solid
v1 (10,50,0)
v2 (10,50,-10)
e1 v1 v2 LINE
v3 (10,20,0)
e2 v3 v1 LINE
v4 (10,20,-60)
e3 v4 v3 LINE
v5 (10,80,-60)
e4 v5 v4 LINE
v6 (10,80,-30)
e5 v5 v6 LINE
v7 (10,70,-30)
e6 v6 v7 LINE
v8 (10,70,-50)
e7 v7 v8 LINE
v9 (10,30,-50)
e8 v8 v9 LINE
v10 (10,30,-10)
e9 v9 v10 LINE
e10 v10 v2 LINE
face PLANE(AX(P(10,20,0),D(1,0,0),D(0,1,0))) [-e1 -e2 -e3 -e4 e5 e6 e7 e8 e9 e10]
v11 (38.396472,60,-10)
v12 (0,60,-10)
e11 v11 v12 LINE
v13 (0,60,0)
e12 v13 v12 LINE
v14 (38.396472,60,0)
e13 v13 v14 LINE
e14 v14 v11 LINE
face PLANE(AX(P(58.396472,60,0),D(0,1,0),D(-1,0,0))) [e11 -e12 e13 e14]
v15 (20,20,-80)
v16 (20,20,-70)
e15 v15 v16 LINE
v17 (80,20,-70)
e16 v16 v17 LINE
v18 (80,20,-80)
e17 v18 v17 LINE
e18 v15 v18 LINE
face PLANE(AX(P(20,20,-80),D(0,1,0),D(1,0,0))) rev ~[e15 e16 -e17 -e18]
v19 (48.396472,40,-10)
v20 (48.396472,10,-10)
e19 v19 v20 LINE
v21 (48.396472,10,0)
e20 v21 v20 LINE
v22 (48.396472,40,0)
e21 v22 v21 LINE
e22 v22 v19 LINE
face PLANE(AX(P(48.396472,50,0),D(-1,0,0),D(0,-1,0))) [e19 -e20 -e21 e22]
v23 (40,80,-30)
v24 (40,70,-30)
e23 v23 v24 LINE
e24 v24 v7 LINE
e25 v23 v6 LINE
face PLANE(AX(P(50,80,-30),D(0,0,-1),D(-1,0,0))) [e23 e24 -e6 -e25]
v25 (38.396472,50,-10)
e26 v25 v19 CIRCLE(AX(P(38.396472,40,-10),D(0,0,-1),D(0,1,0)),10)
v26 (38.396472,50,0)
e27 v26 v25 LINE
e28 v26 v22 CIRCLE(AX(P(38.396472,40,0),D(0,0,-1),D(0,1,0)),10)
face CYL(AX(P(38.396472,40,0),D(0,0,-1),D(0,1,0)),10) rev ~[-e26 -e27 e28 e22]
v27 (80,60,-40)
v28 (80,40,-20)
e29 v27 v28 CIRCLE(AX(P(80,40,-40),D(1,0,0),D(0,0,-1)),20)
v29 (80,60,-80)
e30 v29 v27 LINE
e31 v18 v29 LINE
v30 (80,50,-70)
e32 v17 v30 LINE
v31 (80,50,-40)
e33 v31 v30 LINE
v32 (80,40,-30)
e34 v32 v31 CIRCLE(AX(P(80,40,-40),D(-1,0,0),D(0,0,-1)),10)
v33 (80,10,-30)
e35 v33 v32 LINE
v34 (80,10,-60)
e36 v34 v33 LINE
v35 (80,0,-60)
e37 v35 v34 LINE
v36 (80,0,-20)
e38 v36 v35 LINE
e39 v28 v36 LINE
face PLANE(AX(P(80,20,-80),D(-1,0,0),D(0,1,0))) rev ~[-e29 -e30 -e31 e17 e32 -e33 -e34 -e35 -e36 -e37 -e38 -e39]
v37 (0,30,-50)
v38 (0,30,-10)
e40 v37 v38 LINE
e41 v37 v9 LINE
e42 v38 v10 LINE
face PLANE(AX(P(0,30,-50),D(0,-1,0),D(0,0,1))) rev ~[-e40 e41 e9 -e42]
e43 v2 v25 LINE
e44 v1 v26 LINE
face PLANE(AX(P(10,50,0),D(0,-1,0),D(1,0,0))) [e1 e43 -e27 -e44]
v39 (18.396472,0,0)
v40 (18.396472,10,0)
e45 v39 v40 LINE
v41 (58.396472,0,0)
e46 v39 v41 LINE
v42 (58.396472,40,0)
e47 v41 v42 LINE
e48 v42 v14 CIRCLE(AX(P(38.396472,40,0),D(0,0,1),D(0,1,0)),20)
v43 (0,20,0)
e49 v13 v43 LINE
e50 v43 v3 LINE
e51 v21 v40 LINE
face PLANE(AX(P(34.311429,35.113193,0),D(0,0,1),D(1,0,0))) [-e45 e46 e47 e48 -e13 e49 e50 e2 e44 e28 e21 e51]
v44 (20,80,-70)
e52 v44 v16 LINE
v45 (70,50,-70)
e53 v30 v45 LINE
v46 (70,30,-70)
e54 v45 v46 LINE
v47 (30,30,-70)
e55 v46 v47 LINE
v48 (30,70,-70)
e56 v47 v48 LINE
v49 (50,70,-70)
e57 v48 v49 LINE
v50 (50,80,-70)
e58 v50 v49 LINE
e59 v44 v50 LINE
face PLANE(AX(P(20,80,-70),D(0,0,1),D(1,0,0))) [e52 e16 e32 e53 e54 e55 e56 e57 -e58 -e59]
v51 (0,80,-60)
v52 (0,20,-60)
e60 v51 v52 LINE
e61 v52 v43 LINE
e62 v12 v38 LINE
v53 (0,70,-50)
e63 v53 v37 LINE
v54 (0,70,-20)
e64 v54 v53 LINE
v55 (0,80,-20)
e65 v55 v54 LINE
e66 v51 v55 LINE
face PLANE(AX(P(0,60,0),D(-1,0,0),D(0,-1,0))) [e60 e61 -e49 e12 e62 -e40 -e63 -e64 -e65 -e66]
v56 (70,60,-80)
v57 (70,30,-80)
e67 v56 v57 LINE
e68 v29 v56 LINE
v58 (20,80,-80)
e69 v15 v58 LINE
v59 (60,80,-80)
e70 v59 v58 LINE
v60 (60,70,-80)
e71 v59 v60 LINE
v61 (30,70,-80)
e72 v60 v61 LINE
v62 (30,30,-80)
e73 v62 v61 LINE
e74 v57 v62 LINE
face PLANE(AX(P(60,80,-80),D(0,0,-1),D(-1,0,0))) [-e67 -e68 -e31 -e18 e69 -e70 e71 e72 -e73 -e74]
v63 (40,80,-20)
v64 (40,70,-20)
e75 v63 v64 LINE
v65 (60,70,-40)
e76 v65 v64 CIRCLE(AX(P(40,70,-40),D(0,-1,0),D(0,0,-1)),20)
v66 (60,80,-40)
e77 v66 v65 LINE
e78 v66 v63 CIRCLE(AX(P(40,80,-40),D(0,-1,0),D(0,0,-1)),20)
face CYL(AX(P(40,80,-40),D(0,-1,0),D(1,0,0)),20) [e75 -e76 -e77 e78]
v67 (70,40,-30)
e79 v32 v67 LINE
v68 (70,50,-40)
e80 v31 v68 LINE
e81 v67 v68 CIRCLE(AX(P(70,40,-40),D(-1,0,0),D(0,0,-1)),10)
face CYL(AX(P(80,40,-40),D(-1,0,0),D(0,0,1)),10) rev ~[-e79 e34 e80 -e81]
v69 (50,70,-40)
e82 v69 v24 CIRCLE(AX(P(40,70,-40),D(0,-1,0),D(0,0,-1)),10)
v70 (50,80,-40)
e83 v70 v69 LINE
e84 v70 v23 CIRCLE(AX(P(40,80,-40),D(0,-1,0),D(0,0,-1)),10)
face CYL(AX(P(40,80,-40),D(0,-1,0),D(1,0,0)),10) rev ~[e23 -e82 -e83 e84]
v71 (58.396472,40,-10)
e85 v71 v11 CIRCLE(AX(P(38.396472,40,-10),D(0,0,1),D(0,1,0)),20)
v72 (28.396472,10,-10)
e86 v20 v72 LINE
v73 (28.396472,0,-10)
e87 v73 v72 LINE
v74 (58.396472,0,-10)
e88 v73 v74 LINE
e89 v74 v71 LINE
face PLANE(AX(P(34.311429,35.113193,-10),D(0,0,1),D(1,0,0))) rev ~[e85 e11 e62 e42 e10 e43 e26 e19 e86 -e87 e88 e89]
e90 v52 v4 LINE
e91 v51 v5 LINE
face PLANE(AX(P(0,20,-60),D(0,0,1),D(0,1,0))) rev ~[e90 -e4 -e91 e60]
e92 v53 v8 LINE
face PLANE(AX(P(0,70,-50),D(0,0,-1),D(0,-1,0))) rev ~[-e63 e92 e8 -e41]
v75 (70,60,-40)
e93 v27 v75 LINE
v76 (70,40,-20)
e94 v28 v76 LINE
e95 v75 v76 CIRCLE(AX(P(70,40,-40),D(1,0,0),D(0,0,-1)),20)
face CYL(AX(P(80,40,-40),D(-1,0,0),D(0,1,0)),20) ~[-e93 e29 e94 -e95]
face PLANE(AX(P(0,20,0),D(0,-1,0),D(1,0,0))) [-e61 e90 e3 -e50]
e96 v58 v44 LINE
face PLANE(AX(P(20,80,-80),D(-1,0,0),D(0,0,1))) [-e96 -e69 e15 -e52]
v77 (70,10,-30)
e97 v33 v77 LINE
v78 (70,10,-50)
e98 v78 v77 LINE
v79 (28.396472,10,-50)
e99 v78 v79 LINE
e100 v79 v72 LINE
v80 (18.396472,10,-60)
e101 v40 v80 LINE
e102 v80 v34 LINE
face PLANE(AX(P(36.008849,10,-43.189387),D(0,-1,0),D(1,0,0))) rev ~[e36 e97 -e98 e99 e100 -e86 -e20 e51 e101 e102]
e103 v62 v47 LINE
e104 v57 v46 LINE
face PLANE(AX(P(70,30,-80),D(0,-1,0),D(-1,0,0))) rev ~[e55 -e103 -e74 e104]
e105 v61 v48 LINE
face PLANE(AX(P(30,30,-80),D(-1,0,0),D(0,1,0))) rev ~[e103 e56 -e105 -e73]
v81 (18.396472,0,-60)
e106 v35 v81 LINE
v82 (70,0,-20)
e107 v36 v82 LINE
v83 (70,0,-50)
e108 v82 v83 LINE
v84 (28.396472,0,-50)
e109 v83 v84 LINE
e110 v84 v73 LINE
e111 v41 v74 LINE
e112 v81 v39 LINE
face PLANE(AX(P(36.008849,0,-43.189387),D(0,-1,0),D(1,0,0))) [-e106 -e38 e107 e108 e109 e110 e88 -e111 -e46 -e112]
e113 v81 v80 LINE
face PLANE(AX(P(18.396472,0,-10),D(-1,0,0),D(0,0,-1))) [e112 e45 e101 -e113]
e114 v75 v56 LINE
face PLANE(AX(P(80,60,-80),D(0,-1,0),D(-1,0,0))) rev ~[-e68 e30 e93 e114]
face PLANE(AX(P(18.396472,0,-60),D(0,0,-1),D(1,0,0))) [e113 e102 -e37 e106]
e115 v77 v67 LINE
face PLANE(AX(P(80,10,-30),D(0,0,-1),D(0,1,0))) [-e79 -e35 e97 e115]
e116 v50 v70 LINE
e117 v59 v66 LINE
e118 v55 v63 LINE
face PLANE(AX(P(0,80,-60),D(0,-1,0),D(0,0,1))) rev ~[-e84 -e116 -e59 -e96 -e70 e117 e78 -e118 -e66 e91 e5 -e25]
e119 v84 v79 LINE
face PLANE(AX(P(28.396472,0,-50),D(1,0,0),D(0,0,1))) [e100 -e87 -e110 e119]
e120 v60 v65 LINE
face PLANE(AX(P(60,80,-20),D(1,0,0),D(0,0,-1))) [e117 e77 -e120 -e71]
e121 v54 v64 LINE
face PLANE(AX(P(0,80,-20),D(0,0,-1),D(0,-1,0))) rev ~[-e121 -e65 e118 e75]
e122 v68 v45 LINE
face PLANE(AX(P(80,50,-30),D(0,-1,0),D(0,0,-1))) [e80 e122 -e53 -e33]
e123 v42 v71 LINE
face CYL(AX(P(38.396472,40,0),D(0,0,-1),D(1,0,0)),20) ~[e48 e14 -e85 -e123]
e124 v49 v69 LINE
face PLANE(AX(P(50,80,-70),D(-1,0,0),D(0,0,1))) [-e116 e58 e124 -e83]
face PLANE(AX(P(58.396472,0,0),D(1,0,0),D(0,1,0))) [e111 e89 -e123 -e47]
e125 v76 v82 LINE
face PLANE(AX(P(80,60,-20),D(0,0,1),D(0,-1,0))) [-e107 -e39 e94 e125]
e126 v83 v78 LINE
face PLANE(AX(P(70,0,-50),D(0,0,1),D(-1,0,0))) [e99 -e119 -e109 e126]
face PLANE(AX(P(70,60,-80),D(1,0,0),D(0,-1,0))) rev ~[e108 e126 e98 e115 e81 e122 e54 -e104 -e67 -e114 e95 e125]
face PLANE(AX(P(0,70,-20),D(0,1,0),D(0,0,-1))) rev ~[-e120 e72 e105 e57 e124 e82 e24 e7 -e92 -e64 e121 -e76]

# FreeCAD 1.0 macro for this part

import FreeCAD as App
import Part
import Sketcher

V = App.Vector


def edges_at(feature, points):
    """Names of the edges that pass closest to the given points."""
    edges = feature.Shape.Edges
    near = lambda p: min(range(len(edges)), key=lambda i: edges[i].distToShape(Part.Vertex(*p))[0])
    return sorted({f"Edge{near(p) + 1}" for p in points})


def add_polygon(sketch, points):
    """Adds a closed chain of lines whose ends are joined by coincident constraints."""
    first, n = sketch.GeometryCount, len(points)
    for a, b in zip(points, points[1:] + points[:1]):
        sketch.addGeometry(Part.LineSegment(App.Vector(*a, 0), App.Vector(*b, 0)), False)
    for i in range(n):
        sketch.addConstraint(Sketcher.Constraint("Coincident", first + i, 2, first + (i + 1) % n, 1))

doc = App.newDocument("Part")
body = doc.addObject("PartDesign::Body", "Body")

# Sketch on XY plane
sketch1 = doc.addObject("Sketcher::SketchObject", "Sketch")
body.addObject(sketch1)
sketch1.AttachmentSupport = (doc.XY_Plane, [""])
sketch1.MapMode = "FlatFace"
add_polygon(sketch1, [(0, 60), (0, 20), (10, 20), (10, 50), (48, 50), (48, 10), (18, 10), (18, 0), (58, 0), (58, 60)])  # lines 0-9
sketch1.addConstraint([
    Sketcher.Constraint("Vertical", 0),
    Sketcher.Constraint("Horizontal", 1),
    Sketcher.Constraint("Vertical", 2),
    Sketcher.Constraint("Horizontal", 3),
    Sketcher.Constraint("Vertical", 4),
    Sketcher.Constraint("Horizontal", 5),
    Sketcher.Constraint("Vertical", 6),
    Sketcher.Constraint("Horizontal", 7),
    Sketcher.Constraint("Vertical", 8),
    Sketcher.Constraint("Horizontal", 9),
    Sketcher.Constraint("PointOnObject", 0, 2, -2),
    Sketcher.Constraint("PointOnObject", 6, 2, -1),
    Sketcher.Constraint("Equal", 7, 0),
    Sketcher.Constraint("Equal", 5, 2),
    Sketcher.Constraint("Equal", 0, 4),
    Sketcher.Constraint("Equal", 1, 6),
    Sketcher.Constraint("DistanceX", 1, 1, 1, 2, 10.0),
    Sketcher.Constraint("DistanceX", 5, 2, 5, 1, 30.0),
    Sketcher.Constraint("DistanceX", 7, 1, 7, 2, 40.0),
    Sketcher.Constraint("DistanceX", 3, 1, 3, 2, 38.396472),
])
pad1 = doc.addObject("PartDesign::Pad", "Pad")
body.addObject(pad1)
pad1.Profile = sketch1
pad1.Length = 10
pad1.Reversed = True

# Sketch on YZ plane
sketch2 = doc.addObject("Sketcher::SketchObject", "Sketch001")
body.addObject(sketch2)
sketch2.AttachmentSupport = (doc.YZ_Plane, [""])
sketch2.MapMode = "FlatFace"
add_polygon(sketch2, [(20, -60), (20, 0), (60, 0), (60, -10), (30, -10), (30, -50), (70, -50), (70, -20), (80, -20), (80, -60)])  # lines 0-9
sketch2.addConstraint([
    Sketcher.Constraint("Vertical", 0),
    Sketcher.Constraint("Horizontal", 1),
    Sketcher.Constraint("Vertical", 2),
    Sketcher.Constraint("Horizontal", 3),
    Sketcher.Constraint("Vertical", 4),
    Sketcher.Constraint("Horizontal", 5),
    Sketcher.Constraint("Vertical", 6),
    Sketcher.Constraint("Horizontal", 7),
    Sketcher.Constraint("Vertical", 8),
    Sketcher.Constraint("Horizontal", 9),
    Sketcher.Constraint("PointOnObject", 0, 2, -1),
    Sketcher.Constraint("Equal", 1, 5),
    Sketcher.Constraint("Equal", 9, 0),
    Sketcher.Constraint("Equal", 7, 2),
    Sketcher.Constraint("Equal", 5, 4),
    Sketcher.Constraint("Equal", 3, 6),
    Sketcher.Constraint("DistanceX", 1, 1, 1, 2, 40.0),
    Sketcher.Constraint("DistanceX", 3, 2, 3, 1, 30.0),
    Sketcher.Constraint("DistanceX", 7, 1, 7, 2, 10.0),
    Sketcher.Constraint("DistanceX", -1, 1, 0, 2, 20.0),
])
pad2 = doc.addObject("PartDesign::Pad", "Pad001")
body.addObject(pad2)
pad2.Profile = sketch2
pad2.Length = 10

# Sketch on XZ plane
sketch3 = doc.addObject("Sketcher::SketchObject", "Sketch002")
body.addObject(sketch3)
sketch3.AttachmentSupport = (doc.XZ_Plane, [""])
sketch3.MapMode = "FlatFace"
sketch3.AttachmentOffset = App.Placement(V(0, 0, -80), App.Rotation())
add_polygon(sketch3, [(0, -60), (0, -20), (60, -20), (60, -80), (20, -80), (20, -70), (50, -70), (50, -30), (10, -30), (10, -60)])  # lines 0-9
sketch3.addConstraint([
    Sketcher.Constraint("Vertical", 0),
    Sketcher.Constraint("Horizontal", 1),
    Sketcher.Constraint("Vertical", 2),
    Sketcher.Constraint("Horizontal", 3),
    Sketcher.Constraint("Vertical", 4),
    Sketcher.Constraint("Horizontal", 5),
    Sketcher.Constraint("Vertical", 6),
    Sketcher.Constraint("Horizontal", 7),
    Sketcher.Constraint("Vertical", 8),
    Sketcher.Constraint("Horizontal", 9),
    Sketcher.Constraint("PointOnObject", 0, 2, -2),
    Sketcher.Constraint("Equal", 3, 7),
    Sketcher.Constraint("Equal", 7, 0),
    Sketcher.Constraint("Equal", 1, 2),
    Sketcher.Constraint("Equal", 9, 4),
    Sketcher.Constraint("Equal", 0, 6),
    Sketcher.Constraint("DistanceX", 1, 1, 1, 2, 60.0),
    Sketcher.Constraint("DistanceX", 3, 2, 3, 1, 40.0),
    Sketcher.Constraint("DistanceX", 5, 1, 5, 2, 30.0),
    Sketcher.Constraint("DistanceY", 0, 2, -1, 1, 20.0),
])
pad3 = doc.addObject("PartDesign::Pad", "Pad002")
body.addObject(pad3)
pad3.Profile = sketch3
pad3.Length = 10

# Sketch on XY plane
sketch4 = doc.addObject("Sketcher::SketchObject", "Sketch003")
body.addObject(sketch4)
sketch4.AttachmentSupport = (doc.XY_Plane, [""])
sketch4.MapMode = "FlatFace"
sketch4.AttachmentOffset = App.Placement(V(0, 0, -80), App.Rotation())
add_polygon(sketch4, [(20, 80), (60, 80), (60, 70), (30, 70), (30, 30), (70, 30), (70, 60), (80, 60), (80, 20), (20, 20)])  # lines 0-9
sketch4.addConstraint([
    Sketcher.Constraint("Horizontal", 0),
    Sketcher.Constraint("Vertical", 1),
    Sketcher.Constraint("Horizontal", 2),
    Sketcher.Constraint("Vertical", 3),
    Sketcher.Constraint("Horizontal", 4),
    Sketcher.Constraint("Vertical", 5),
    Sketcher.Constraint("Horizontal", 6),
    Sketcher.Constraint("Vertical", 7),
    Sketcher.Constraint("Horizontal", 8),
    Sketcher.Constraint("Vertical", 9),
    Sketcher.Constraint("Equal", 0, 4),
    Sketcher.Constraint("Equal", 6, 1),
    Sketcher.Constraint("Equal", 4, 3),
    Sketcher.Constraint("Equal", 2, 5),
    Sketcher.Constraint("Equal", 3, 7),
    Sketcher.Constraint("DistanceX", 0, 1, 0, 2, 40.0),
    Sketcher.Constraint("DistanceX", 2, 2, 2, 1, 30.0),
    Sketcher.Constraint("DistanceX", 6, 1, 6, 2, 10.0),
    Sketcher.Constraint("DistanceX", -1, 1, 0, 2, 60.0),
    Sketcher.Constraint("DistanceY", -1, 1, 0, 2, 80.0),
])
pad4 = doc.addObject("PartDesign::Pad", "Pad003")
body.addObject(pad4)
pad4.Profile = sketch4
pad4.Length = 10

# Sketch on YZ plane
sketch5 = doc.addObject("Sketcher::SketchObject", "Sketch004")
body.addObject(sketch5)
sketch5.AttachmentSupport = (doc.YZ_Plane, [""])
sketch5.MapMode = "FlatFace"
sketch5.AttachmentOffset = App.Placement(V(0, 0, 80), App.Rotation())
add_polygon(sketch5, [(60, -80), (60, -20), (0, -20), (0, -60), (10, -60), (10, -30), (50, -30), (50, -70), (20, -70), (20, -80)])  # lines 0-9
sketch5.addConstraint([
    Sketcher.Constraint("Vertical", 0),
    Sketcher.Constraint("Horizontal", 1),
    Sketcher.Constraint("Vertical", 2),
    Sketcher.Constraint("Horizontal", 3),
    Sketcher.Constraint("Vertical", 4),
    Sketcher.Constraint("Horizontal", 5),
    Sketcher.Constraint("Vertical", 6),
    Sketcher.Constraint("Horizontal", 7),
    Sketcher.Constraint("Vertical", 8),
    Sketcher.Constraint("Horizontal", 9),
    Sketcher.Constraint("PointOnObject", 1, 2, -2),
    Sketcher.Constraint("Equal", 5, 9),
    Sketcher.Constraint("Equal", 1, 0),
    Sketcher.Constraint("Equal", 9, 2),
    Sketcher.Constraint("Equal", 7, 4),
    Sketcher.Constraint("Equal", 2, 6),
    Sketcher.Constraint("DistanceX", 1, 2, 1, 1, 60.0),
    Sketcher.Constraint("DistanceX", 3, 1, 3, 2, 10.0),
    Sketcher.Constraint("DistanceX", 5, 1, 5, 2, 40.0),
    Sketcher.Constraint("DistanceY", 0, 2, -1, 1, 20.0),
])
pad5 = doc.addObject("PartDesign::Pad", "Pad004")
body.addObject(pad5)
pad5.Profile = sketch5
pad5.Length = 10
pad5.Reversed = True

# Sketch on XZ plane
sketch6 = doc.addObject("Sketcher::SketchObject", "Sketch005")
body.addObject(sketch6)
sketch6.AttachmentSupport = (doc.XZ_Plane, [""])
sketch6.MapMode = "FlatFace"
add_polygon(sketch6, [(18, -10), (18, -60), (70, -60), (70, -50), (28, -50), (28, -10)])  # lines 0-5
sketch6.addConstraint([
    Sketcher.Constraint("Vertical", 0),
    Sketcher.Constraint("Horizontal", 1),
    Sketcher.Constraint("Vertical", 2),
    Sketcher.Constraint("Horizontal", 3),
    Sketcher.Constraint("Vertical", 4),
    Sketcher.Constraint("Horizontal", 5),
    Sketcher.Constraint("Equal", 5, 2),
    Sketcher.Constraint("DistanceX", 5, 2, 5, 1, 10.0),
    Sketcher.Constraint("DistanceY", 0, 2, 0, 1, 50.0),
    Sketcher.Constraint("DistanceY", 0, 2, -1, 1, 60.0),
    Sketcher.Constraint("DistanceX", -1, 1, 1, 2, 70.0),
    Sketcher.Constraint("DistanceX", 1, 1, 1, 2, 51.603528),
])
pad6 = doc.addObject("PartDesign::Pad", "Pad005")
body.addObject(pad6)
pad6.Profile = sketch6
pad6.Length = 10
pad6.Reversed = True
doc.recompute()

fillet = doc.addObject("PartDesign::Fillet", "Fillet")
body.addObject(fillet)
fillet.Base = (pad6, edges_at(pad6, [(60, 75, -20)]))
fillet.Radius = 20
doc.recompute()

fillet2 = doc.addObject("PartDesign::Fillet", "Fillet001")
body.addObject(fillet2)
fillet2.Base = (fillet, edges_at(fillet, [(50, 75, -30)]))
fillet2.Radius = 10
doc.recompute()

fillet3 = doc.addObject("PartDesign::Fillet", "Fillet002")
body.addObject(fillet3)
fillet3.Base = (fillet2, edges_at(fillet2, [(75, 60, -20)]))
fillet3.Radius = 20
doc.recompute()

fillet4 = doc.addObject("PartDesign::Fillet", "Fillet003")
body.addObject(fillet4)
fillet4.Base = (fillet3, edges_at(fillet3, [(58.396, 60, -5)]))
fillet4.Radius = 20
doc.recompute()

fillet5 = doc.addObject("PartDesign::Fillet", "Fillet004")
body.addObject(fillet5)
fillet5.Base = (fillet4, edges_at(fillet4, [(48.396, 50, -5)]))
fillet5.Radius = 10
doc.recompute()

fillet6 = doc.addObject("PartDesign::Fillet", "Fillet005")
body.addObject(fillet6)
fillet6.Base = (fillet5, edges_at(fillet5, [(75, 50, -30)]))
fillet6.Radius = 10

doc.recompute()
